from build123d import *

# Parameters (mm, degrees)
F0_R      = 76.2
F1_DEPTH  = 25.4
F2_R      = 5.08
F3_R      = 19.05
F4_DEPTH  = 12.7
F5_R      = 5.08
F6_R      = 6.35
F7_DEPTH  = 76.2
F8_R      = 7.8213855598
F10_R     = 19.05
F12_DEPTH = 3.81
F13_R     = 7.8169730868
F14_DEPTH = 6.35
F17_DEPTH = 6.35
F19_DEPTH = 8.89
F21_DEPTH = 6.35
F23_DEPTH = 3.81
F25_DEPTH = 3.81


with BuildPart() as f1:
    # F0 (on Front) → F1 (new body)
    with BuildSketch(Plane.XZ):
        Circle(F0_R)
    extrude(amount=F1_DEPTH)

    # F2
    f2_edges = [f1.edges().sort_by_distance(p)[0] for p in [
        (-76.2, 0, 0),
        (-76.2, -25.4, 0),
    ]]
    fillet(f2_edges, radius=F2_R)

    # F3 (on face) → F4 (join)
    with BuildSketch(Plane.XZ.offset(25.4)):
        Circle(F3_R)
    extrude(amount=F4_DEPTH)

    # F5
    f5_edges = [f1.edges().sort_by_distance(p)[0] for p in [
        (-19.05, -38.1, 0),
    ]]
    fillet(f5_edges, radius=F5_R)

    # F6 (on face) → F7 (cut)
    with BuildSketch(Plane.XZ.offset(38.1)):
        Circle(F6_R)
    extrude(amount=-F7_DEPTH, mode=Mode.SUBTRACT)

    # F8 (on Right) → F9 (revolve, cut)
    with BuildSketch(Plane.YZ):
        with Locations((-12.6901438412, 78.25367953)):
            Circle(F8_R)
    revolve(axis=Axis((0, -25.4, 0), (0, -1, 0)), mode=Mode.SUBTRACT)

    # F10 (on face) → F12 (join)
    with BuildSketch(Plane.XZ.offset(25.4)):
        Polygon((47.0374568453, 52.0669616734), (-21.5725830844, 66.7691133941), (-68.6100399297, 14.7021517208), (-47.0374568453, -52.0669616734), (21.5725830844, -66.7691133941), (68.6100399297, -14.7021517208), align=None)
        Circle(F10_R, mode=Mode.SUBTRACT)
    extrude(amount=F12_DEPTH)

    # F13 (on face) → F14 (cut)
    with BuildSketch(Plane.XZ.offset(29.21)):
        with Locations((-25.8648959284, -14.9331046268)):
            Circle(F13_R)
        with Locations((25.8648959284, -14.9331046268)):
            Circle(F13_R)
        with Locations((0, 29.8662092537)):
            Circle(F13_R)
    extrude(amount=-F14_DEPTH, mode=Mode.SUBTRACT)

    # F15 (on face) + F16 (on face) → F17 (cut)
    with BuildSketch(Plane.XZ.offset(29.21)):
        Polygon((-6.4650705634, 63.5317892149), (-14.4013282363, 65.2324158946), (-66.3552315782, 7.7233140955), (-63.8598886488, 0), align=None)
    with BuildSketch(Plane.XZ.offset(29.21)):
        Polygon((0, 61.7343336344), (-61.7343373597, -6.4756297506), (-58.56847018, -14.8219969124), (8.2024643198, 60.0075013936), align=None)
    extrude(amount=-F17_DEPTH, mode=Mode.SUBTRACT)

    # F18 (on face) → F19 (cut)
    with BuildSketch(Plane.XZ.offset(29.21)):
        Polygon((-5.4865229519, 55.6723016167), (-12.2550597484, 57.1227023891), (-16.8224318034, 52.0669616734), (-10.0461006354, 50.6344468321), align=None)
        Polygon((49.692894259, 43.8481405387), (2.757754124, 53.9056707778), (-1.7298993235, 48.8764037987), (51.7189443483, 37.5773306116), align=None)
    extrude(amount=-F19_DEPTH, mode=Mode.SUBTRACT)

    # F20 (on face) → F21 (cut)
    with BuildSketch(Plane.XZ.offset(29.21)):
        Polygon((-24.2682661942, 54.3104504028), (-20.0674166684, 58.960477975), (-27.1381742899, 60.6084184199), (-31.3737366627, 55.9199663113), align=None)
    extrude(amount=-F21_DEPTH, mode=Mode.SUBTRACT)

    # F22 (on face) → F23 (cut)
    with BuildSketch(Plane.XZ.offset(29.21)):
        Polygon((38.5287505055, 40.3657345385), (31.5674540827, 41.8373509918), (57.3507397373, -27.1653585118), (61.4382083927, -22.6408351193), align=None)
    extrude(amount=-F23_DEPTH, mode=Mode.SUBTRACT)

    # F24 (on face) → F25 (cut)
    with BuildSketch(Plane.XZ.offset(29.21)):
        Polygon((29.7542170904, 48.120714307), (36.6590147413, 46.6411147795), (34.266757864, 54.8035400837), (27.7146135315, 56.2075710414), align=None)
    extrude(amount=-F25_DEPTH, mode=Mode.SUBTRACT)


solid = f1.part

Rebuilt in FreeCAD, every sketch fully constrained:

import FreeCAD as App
import Part
import Sketcher
Q = App.Units.Quantity


def edges_at(feature, points):
    """Names of the edges that pass closest to the given points."""
    edges = feature.Shape.Edges
    near = lambda p: min(range(len(edges)), key=lambda i: edges[i].distToShape(Part.Vertex(*p))[0])
    return sorted({f"Edge{near(p) + 1}" for p in points})

doc = App.newDocument("Part")
body = doc.addObject("PartDesign::Body", "Body")

# Sketch on XZ plane
sketch1 = body.newObject("Sketcher::SketchObject", "Sketch")
sketch1.AttachmentSupport = (doc.getObject("XZ_Plane"), [""])
sketch1.MapMode = "FlatFace"
sketch1.addGeometry(Part.Circle(App.Vector(0, 0, 0), App.Vector(0, 0, 1), 76), False)
sketch1.addConstraint([
    Sketcher.Constraint("Coincident", 0, 3, -1, 1),
    Sketcher.Constraint("Diameter", 0, Q("6 in")),
])
pad1 = body.newObject("PartDesign::Pad", "Pad")
pad1.Profile = sketch1
pad1.Length = Q("1 in")
doc.recompute()

fillet = body.newObject("PartDesign::Fillet", "Fillet")
fillet.Base = (pad1, edges_at(pad1, [(-76.2, 0, 0), (-76.2, -25.4, 0)]))
fillet.Radius = Q("0.2 in")

# Sketch on XZ plane
sketch2 = body.newObject("Sketcher::SketchObject", "Sketch001")
sketch2.AttachmentSupport = (doc.getObject("XZ_Plane"), [""])
sketch2.MapMode = "FlatFace"
sketch2.AttachmentOffset = App.Placement(App.Vector(0, 0, 1 * 25.4), App.Rotation())
sketch2.addGeometry(Part.Circle(App.Vector(0, 0, 0), App.Vector(0, 0, 1), 19), False)
sketch2.addConstraint([
    Sketcher.Constraint("Coincident", 0, 3, -1, 1),
    Sketcher.Constraint("Diameter", 0, Q("1.5 in")),
])
pad2 = body.newObject("PartDesign::Pad", "Pad001")
pad2.Profile = sketch2
pad2.Length = Q("0.5 in")
doc.recompute()

fillet2 = body.newObject("PartDesign::Fillet", "Fillet001")
fillet2.Base = (pad2, edges_at(pad2, [(-19.05, -38.1, 0)]))
fillet2.Radius = Q("0.2 in")

# Sketch on XZ plane
sketch3 = body.newObject("Sketcher::SketchObject", "Sketch002")
sketch3.AttachmentSupport = (doc.getObject("XZ_Plane"), [""])
sketch3.MapMode = "FlatFace"
sketch3.AttachmentOffset = App.Placement(App.Vector(0, 0, 1.5 * 25.4), App.Rotation())
sketch3.addGeometry(Part.Circle(App.Vector(0, 0, 0), App.Vector(0, 0, 1), 6), False)
sketch3.addConstraint([
    Sketcher.Constraint("Coincident", 0, 3, -1, 1),
    Sketcher.Constraint("Diameter", 0, Q("0.5 in")),
])
pocket1 = body.newObject("PartDesign::Pocket", "Pocket")
pocket1.Profile = sketch3
pocket1.Length = Q("3 in")

# Sketch on YZ plane
sketch4 = body.newObject("Sketcher::SketchObject", "Sketch003")
sketch4.AttachmentSupport = (doc.getObject("YZ_Plane"), [""])
sketch4.MapMode = "FlatFace"
sketch4.addGeometry(Part.Circle(App.Vector(-13, 78, 0), App.Vector(0, 0, 1), 8), False)
sketch4.addConstraint([
    Sketcher.Constraint("Diameter", 0, 15.642771),
    Sketcher.Constraint("DistanceY", -1, 1, 0, 3, 78.25368),
    Sketcher.Constraint("DistanceX", 0, 3, -1, 1, 12.690144),
])
groove = body.newObject("PartDesign::Groove", "Groove")
groove.Profile = sketch4
groove.ReferenceAxis = (sketch4, ["H_Axis"])
groove.Angle = 360

# Sketch on XZ plane
sketch5 = body.newObject("Sketcher::SketchObject", "Sketch004")
sketch5.AttachmentSupport = (doc.getObject("XZ_Plane"), [""])
sketch5.MapMode = "FlatFace"
sketch5.AttachmentOffset = App.Placement(App.Vector(0, 0, 1 * 25.4), App.Rotation())
sketch5.addGeometry([
    Part.LineSegment(App.Vector(47, 52, 0), App.Vector(-22, 67, 0)),  # 0
    Part.LineSegment(App.Vector(-22, 67, 0), App.Vector(-69, 15, 0)),  # 1
    Part.LineSegment(App.Vector(-69, 15, 0), App.Vector(-47, -52, 0)),  # 2
    Part.LineSegment(App.Vector(-47, -52, 0), App.Vector(22, -67, 0)),  # 3
    Part.LineSegment(App.Vector(22, -67, 0), App.Vector(69, -15, 0)),  # 4
    Part.LineSegment(App.Vector(69, -15, 0), App.Vector(47, 52, 0)),  # 5
    Part.Circle(App.Vector(0, 0, 0), App.Vector(0, 0, 1), 19),  # 6
], False)
sketch5.addConstraint([
    Sketcher.Constraint("Coincident", 0, 2, 1, 1),
    Sketcher.Constraint("Coincident", 1, 2, 2, 1),
    Sketcher.Constraint("Coincident", 2, 2, 3, 1),
    Sketcher.Constraint("Coincident", 3, 2, 4, 1),
    Sketcher.Constraint("Coincident", 4, 2, 5, 1),
    Sketcher.Constraint("Coincident", 5, 2, 0, 1),
    Sketcher.Constraint("Coincident", 6, 3, -1, 1),
    Sketcher.Constraint("Symmetric", 0, 2, 3, 2, -1, 1),
    Sketcher.Constraint("Symmetric", 1, 2, 4, 2, -1, 1),
    Sketcher.Constraint("Symmetric", 2, 2, 5, 2, -1, 1),
    Sketcher.Constraint("Equal", 0, 1),
    Sketcher.Constraint("Equal", 1, 2),
    Sketcher.Constraint("Diameter", 6, Q("1.5 in")),
    Sketcher.Constraint("Distance", 0, 70.167591),
    Sketcher.Constraint("DistanceX", 1, 2, -1, 1, 68.61004),
    Sketcher.Constraint("DistanceY", -1, 1, 1, 2, 14.702152),
    Sketcher.Constraint("DistanceY", 2, 2, -1, 1, 52.066962),
])
pad3 = body.newObject("PartDesign::Pad", "Pad002")
pad3.Profile = sketch5
pad3.Length = Q("0.15 in")

# Sketch on XZ plane
sketch6 = body.newObject("Sketcher::SketchObject", "Sketch005")
sketch6.AttachmentSupport = (doc.getObject("XZ_Plane"), [""])
sketch6.MapMode = "FlatFace"
sketch6.AttachmentOffset = App.Placement(App.Vector(0, 0, 1.15 * 25.4), App.Rotation())
sketch6.addGeometry([
    Part.Circle(App.Vector(-26, -15, 0), App.Vector(0, 0, 1), 8),
    Part.Circle(App.Vector(26, -15, 0), App.Vector(0, 0, 1), 8),
    Part.Circle(App.Vector(0, 30, 0), App.Vector(0, 0, 1), 8),
], False)
sketch6.addConstraint([
    Sketcher.Constraint("Equal", 0, 1),
    Sketcher.Constraint("Equal", 1, 2),
    Sketcher.Constraint("Symmetric", 0, 3, 1, 3, -2),
    Sketcher.Constraint("PointOnObject", 2, 3, -2),
    Sketcher.Constraint("Diameter", 0, 15.633946),
    Sketcher.Constraint("DistanceY", -1, 1, 2, 3, 29.866209),
    Sketcher.Constraint("DistanceX", 0, 3, 1, 3, 51.729792),
    Sketcher.Constraint("DistanceY", 0, 3, -1, 1, 14.933105),
])
pocket2 = body.newObject("PartDesign::Pocket", "Pocket001")
pocket2.Profile = sketch6
pocket2.Length = Q("0.25 in")

# Sketch on XZ plane
sketch7 = body.newObject("Sketcher::SketchObject", "Sketch006")
sketch7.AttachmentSupport = (doc.getObject("XZ_Plane"), [""])
sketch7.MapMode = "FlatFace"
sketch7.AttachmentOffset = App.Placement(App.Vector(0, 0, 1.15 * 25.4), App.Rotation())
sketch7.addGeometry([
    Part.LineSegment(App.Vector(-6, 64, 0), App.Vector(-14, 65, 0)),  # 0
    Part.LineSegment(App.Vector(-14, 65, 0), App.Vector(-66, 8, 0)),  # 1
    Part.LineSegment(App.Vector(-66, 8, 0), App.Vector(-64, 0, 0)),  # 2
    Part.LineSegment(App.Vector(-64, 0, 0), App.Vector(-6, 64, 0)),  # 3
    Part.LineSegment(App.Vector(0, 62, 0), App.Vector(-62, -6, 0)),  # 4
    Part.LineSegment(App.Vector(-62, -6, 0), App.Vector(-59, -15, 0)),  # 5
    Part.LineSegment(App.Vector(-59, -15, 0), App.Vector(8, 60, 0)),  # 6
    Part.LineSegment(App.Vector(8, 60, 0), App.Vector(0, 62, 0)),  # 7
], False)
sketch7.addConstraint([
    Sketcher.Constraint("Coincident", 0, 2, 1, 1),
    Sketcher.Constraint("Coincident", 1, 2, 2, 1),
    Sketcher.Constraint("Coincident", 2, 2, 3, 1),
    Sketcher.Constraint("Coincident", 3, 2, 0, 1),
    Sketcher.Constraint("Coincident", 4, 2, 5, 1),
    Sketcher.Constraint("Coincident", 5, 2, 6, 1),
    Sketcher.Constraint("Coincident", 6, 2, 7, 1),
    Sketcher.Constraint("Coincident", 7, 2, 4, 1),
    Sketcher.Constraint("PointOnObject", 2, 2, -1),
    Sketcher.Constraint("PointOnObject", 7, 2, -2),
    Sketcher.Constraint("Parallel", 1, 3),
    Sketcher.Constraint("Equal", 0, 2),
    Sketcher.Constraint("DistanceY", -1, 1, 6, 2, Q("2.3625001 in")),
    Sketcher.Constraint("DistanceY", 1, 2, 0, 2, 57.509102),
    Sketcher.Constraint("DistanceX", 5, 2, 3, 2, 52.1034),
    Sketcher.Constraint("DistanceX", 4, 2, 6, 2, 69.936802),
    Sketcher.Constraint("Distance", 4, 91.998519),
    Sketcher.Constraint("Distance", 5, 8.926621),
    Sketcher.Constraint("Distance", 6, 100.288641),
    Sketcher.Constraint("DistanceX", 0, 2, -1, 1, 14.401328),
    Sketcher.Constraint("DistanceX", 1, 2, -1, 1, 66.355232),
    Sketcher.Constraint("DistanceX", 2, 2, -1, 1, 63.859889),
    Sketcher.Constraint("DistanceX", 3, 2, -1, 1, 6.465071),
    Sketcher.Constraint("DistanceY", 4, 2, -1, 1, 6.47563),
])
pocket3 = body.newObject("PartDesign::Pocket", "Pocket002")
pocket3.Profile = sketch7
pocket3.Length = Q("0.25 in")

# Sketch on XZ plane
sketch8 = body.newObject("Sketcher::SketchObject", "Sketch007")
sketch8.AttachmentSupport = (doc.getObject("XZ_Plane"), [""])
sketch8.MapMode = "FlatFace"
sketch8.AttachmentOffset = App.Placement(App.Vector(0, 0, 1.15 * 25.4), App.Rotation())
sketch8.addGeometry([
    Part.LineSegment(App.Vector(-5, 56, 0), App.Vector(-12, 57, 0)),  # 0
    Part.LineSegment(App.Vector(-12, 57, 0), App.Vector(-17, 52, 0)),  # 1
    Part.LineSegment(App.Vector(-17, 52, 0), App.Vector(-10, 51, 0)),  # 2
    Part.LineSegment(App.Vector(-10, 51, 0), App.Vector(-5, 56, 0)),  # 3
    Part.LineSegment(App.Vector(50, 44, 0), App.Vector(3, 54, 0)),  # 4
    Part.LineSegment(App.Vector(3, 54, 0), App.Vector(-2, 49, 0)),  # 5
    Part.LineSegment(App.Vector(-2, 49, 0), App.Vector(52, 38, 0)),  # 6
    Part.LineSegment(App.Vector(52, 38, 0), App.Vector(50, 44, 0)),  # 7
], False)
sketch8.addConstraint([
    Sketcher.Constraint("Coincident", 0, 2, 1, 1),
    Sketcher.Constraint("Coincident", 1, 2, 2, 1),
    Sketcher.Constraint("Coincident", 2, 2, 3, 1),
    Sketcher.Constraint("Coincident", 3, 2, 0, 1),
    Sketcher.Constraint("Coincident", 4, 2, 5, 1),
    Sketcher.Constraint("Coincident", 5, 2, 6, 1),
    Sketcher.Constraint("Coincident", 6, 2, 7, 1),
    Sketcher.Constraint("Coincident", 7, 2, 4, 1),
    Sketcher.Constraint("Parallel", 0, 4),
    Sketcher.Constraint("Parallel", 2, 6),
    Sketcher.Constraint("Distance", 6, 54.630101),
    Sketcher.Constraint("DistanceX", 2, 2, -1, 1, 10.046101),
    Sketcher.Constraint("DistanceY", -1, 1, 3, 2, 55.672302),
    Sketcher.Constraint("DistanceX", 5, 2, -1, 1, 1.729899),
    Sketcher.Constraint("DistanceY", 3, 2, 0, 2, 1.450401),
    Sketcher.Constraint("DistanceY", 5, 2, 0, 2, 8.246299),
    Sketcher.Constraint("Distance", 3, 6.794831),
    Sketcher.Constraint("Distance", 4, 48.000638),
    Sketcher.Constraint("DistanceX", 0, 2, -1, 1, 12.25506),
    Sketcher.Constraint("DistanceX", 1, 2, -1, 1, 16.822432),
    Sketcher.Constraint("DistanceY", -1, 1, 1, 2, 52.066962),
    Sketcher.Constraint("DistanceY", -1, 1, 4, 2, 53.905671),
    Sketcher.Constraint("DistanceY", -1, 1, 6, 2, 37.577331),
    Sketcher.Constraint("DistanceX", 4, 2, 6, 2, 48.96119),
])
pocket4 = body.newObject("PartDesign::Pocket", "Pocket003")
pocket4.Profile = sketch8
pocket4.Length = Q("0.35 in")

# Sketch on XZ plane
sketch9 = body.newObject("Sketcher::SketchObject", "Sketch008")
sketch9.AttachmentSupport = (doc.getObject("XZ_Plane"), [""])
sketch9.MapMode = "FlatFace"
sketch9.AttachmentOffset = App.Placement(App.Vector(0, 0, 1.15 * 25.4), App.Rotation())
sketch9.addGeometry([
    Part.LineSegment(App.Vector(-24, 54, 0), App.Vector(-20, 59, 0)),
    Part.LineSegment(App.Vector(-20, 59, 0), App.Vector(-27, 61, 0)),
    Part.LineSegment(App.Vector(-27, 61, 0), App.Vector(-31, 56, 0)),
    Part.LineSegment(App.Vector(-31, 56, 0), App.Vector(-24, 54, 0)),
], False)
sketch9.addConstraint([
    Sketcher.Constraint("Coincident", 0, 2, 1, 1),
    Sketcher.Constraint("Coincident", 1, 2, 2, 1),
    Sketcher.Constraint("Coincident", 2, 2, 3, 1),
    Sketcher.Constraint("Coincident", 3, 2, 0, 1),
    Sketcher.Constraint("Parallel", 0, 2),
    Sketcher.Constraint("Distance", 0, 6.266569),
    Sketcher.Constraint("Distance", 2, 6.318352),
    Sketcher.Constraint("DistanceY", -1, 1, 1, 2, 60.608418),
    Sketcher.Constraint("DistanceY", -1, 1, 3, 2, 54.31045),
    Sketcher.Constraint("DistanceY", 0, 2, 1, 2, 1.64794),
    Sketcher.Constraint("DistanceX", 2, 2, 0, 2, 11.30632),
    Sketcher.Constraint("DistanceX", 0, 2, -1, 1, 20.067417),
])
pocket5 = body.newObject("PartDesign::Pocket", "Pocket004")
pocket5.Profile = sketch9
pocket5.Length = Q("0.25 in")

# Sketch on XZ plane
sketch10 = body.newObject("Sketcher::SketchObject", "Sketch009")
sketch10.AttachmentSupport = (doc.getObject("XZ_Plane"), [""])
sketch10.MapMode = "FlatFace"
sketch10.AttachmentOffset = App.Placement(App.Vector(0, 0, 1.15 * 25.4), App.Rotation())
sketch10.addGeometry([
    Part.LineSegment(App.Vector(39, 40, 0), App.Vector(32, 42, 0)),
    Part.LineSegment(App.Vector(32, 42, 0), App.Vector(57, -27, 0)),
    Part.LineSegment(App.Vector(57, -27, 0), App.Vector(61, -23, 0)),
    Part.LineSegment(App.Vector(61, -23, 0), App.Vector(39, 40, 0)),
], False)
sketch10.addConstraint([
    Sketcher.Constraint("Coincident", 0, 2, 1, 1),
    Sketcher.Constraint("Coincident", 1, 2, 2, 1),
    Sketcher.Constraint("Coincident", 2, 2, 3, 1),
    Sketcher.Constraint("Coincident", 3, 2, 0, 1),
    Sketcher.Constraint("Distance", 3, 67.042308),
    Sketcher.Constraint("DistanceY", -1, 1, 0, 2, 41.837351),
    Sketcher.Constraint("DistanceX", -1, 1, 1, 2, 57.35074),
    Sketcher.Constraint("DistanceY", 1, 2, -1, 1, 27.165359),
    Sketcher.Constraint("DistanceX", -1, 1, 2, 2, 61.438208),
    Sketcher.Constraint("DistanceX", -1, 1, 3, 2, 38.528751),
    Sketcher.Constraint("Distance", 0, 7.115146),
    Sketcher.Constraint("Distance", 1, 73.662417),
])
pocket6 = body.newObject("PartDesign::Pocket", "Pocket005")
pocket6.Profile = sketch10
pocket6.Length = Q("0.15 in")

# Sketch on XZ plane
sketch11 = body.newObject("Sketcher::SketchObject", "Sketch010")
sketch11.AttachmentSupport = (doc.getObject("XZ_Plane"), [""])
sketch11.MapMode = "FlatFace"
sketch11.AttachmentOffset = App.Placement(App.Vector(0, 0, 1.15 * 25.4), App.Rotation())
sketch11.addGeometry([
    Part.LineSegment(App.Vector(30, 48, 0), App.Vector(37, 47, 0)),
    Part.LineSegment(App.Vector(37, 47, 0), App.Vector(34, 55, 0)),
    Part.LineSegment(App.Vector(34, 55, 0), App.Vector(28, 56, 0)),
    Part.LineSegment(App.Vector(28, 56, 0), App.Vector(30, 48, 0)),
], False)
sketch11.addConstraint([
    Sketcher.Constraint("Coincident", 0, 2, 1, 1),
    Sketcher.Constraint("Coincident", 1, 2, 2, 1),
    Sketcher.Constraint("Coincident", 2, 2, 3, 1),
    Sketcher.Constraint("Coincident", 3, 2, 0, 1),
    Sketcher.Constraint("Parallel", 0, 2),
    Sketcher.Constraint("DistanceX", 2, 2, 0, 2, 8.944401),
    Sketcher.Constraint("DistanceY", 0, 2, 3, 2, 1.4796),
    Sketcher.Constraint("DistanceY", -1, 1, 1, 2, 54.80354),
    Sketcher.Constraint("DistanceY", -1, 1, 2, 2, 56.207571),
    Sketcher.Constraint("DistanceX", 3, 2, 1, 2, 4.512541),
    Sketcher.Constraint("Distance", 1, 8.505767),
    Sketcher.Constraint("DistanceX", -1, 1, 0, 2, 36.659015),
])
pocket7 = body.newObject("PartDesign::Pocket", "Pocket006")
pocket7.Profile = sketch11
pocket7.Length = Q("0.15 in")

doc.recompute()
